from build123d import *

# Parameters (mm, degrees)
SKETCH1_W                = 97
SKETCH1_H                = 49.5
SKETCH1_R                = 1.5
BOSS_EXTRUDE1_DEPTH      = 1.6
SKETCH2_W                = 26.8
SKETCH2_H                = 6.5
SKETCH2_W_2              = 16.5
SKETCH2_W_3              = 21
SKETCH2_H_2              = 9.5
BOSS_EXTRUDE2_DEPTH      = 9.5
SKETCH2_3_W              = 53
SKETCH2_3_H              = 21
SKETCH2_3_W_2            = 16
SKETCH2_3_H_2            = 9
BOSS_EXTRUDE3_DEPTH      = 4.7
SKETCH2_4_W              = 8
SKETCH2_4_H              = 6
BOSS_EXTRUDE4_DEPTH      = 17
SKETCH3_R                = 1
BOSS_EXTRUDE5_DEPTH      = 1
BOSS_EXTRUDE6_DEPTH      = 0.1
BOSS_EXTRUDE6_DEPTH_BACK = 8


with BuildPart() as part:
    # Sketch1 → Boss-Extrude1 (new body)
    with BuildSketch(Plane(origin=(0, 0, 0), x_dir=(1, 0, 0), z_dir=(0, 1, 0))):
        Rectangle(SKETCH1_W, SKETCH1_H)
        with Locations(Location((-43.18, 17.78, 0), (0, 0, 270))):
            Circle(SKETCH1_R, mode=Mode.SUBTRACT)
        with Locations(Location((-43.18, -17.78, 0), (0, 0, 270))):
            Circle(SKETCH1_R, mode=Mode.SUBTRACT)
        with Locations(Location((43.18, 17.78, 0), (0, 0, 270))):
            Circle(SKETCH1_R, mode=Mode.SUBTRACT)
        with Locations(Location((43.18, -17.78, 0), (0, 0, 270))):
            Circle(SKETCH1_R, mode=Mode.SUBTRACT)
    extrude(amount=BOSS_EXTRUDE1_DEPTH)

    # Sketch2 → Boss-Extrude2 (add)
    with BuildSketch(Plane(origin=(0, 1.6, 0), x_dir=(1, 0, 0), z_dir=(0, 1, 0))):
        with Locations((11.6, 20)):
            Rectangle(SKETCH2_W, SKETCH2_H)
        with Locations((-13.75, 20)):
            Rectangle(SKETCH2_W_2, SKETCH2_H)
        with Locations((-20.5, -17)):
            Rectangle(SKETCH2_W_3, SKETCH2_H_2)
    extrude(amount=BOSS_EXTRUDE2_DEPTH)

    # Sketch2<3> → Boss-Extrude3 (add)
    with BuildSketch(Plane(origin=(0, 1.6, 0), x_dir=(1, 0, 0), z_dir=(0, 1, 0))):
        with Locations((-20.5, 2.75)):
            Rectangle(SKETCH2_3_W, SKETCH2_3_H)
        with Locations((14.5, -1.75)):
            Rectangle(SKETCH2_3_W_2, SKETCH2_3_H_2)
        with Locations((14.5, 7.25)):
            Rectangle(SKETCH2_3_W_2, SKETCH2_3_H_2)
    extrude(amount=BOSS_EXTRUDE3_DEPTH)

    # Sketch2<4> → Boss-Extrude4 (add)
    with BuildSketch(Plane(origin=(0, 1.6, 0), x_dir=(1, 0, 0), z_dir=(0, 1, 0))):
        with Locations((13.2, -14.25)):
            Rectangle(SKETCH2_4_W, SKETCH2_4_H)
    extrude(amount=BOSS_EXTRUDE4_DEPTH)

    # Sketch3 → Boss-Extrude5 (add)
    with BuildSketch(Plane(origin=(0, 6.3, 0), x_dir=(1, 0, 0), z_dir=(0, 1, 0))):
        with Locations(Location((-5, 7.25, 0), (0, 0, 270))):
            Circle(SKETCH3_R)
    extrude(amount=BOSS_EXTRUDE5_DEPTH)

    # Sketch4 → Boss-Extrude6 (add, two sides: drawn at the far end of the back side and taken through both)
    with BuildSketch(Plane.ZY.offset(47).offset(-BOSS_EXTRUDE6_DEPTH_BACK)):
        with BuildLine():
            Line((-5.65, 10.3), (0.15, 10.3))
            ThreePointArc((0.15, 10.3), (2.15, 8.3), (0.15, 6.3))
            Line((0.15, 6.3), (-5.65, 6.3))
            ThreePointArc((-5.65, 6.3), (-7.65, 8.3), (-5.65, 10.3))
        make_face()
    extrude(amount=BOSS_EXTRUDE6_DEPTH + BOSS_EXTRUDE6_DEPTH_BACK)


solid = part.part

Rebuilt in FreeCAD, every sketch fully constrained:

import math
import FreeCAD as App
import Part
import Sketcher
from FreeCAD import Vector

doc = App.newDocument("Part")
params = doc.addObject("Spreadsheet::Sheet", "Params")
for row, (alias, value) in enumerate([
    ("sketch1_diameter", "3 mm"),
    ("sketch1_width", "97 mm"),
    ("sketch1_height", "49.5 mm"),
    ("pad1_length", "1.6 mm"),
    ("sketch2_width", "21 mm"),
    ("sketch2_width2", "26.8 mm"),
    ("sketch2_width3", "16.5 mm"),
    ("sketch2_height", "6.5 mm"),
    ("sketch2_height2", "9.5 mm"),
    ("pad2_length", "9.5 mm"),
    ("sketch3_width", "53 mm"),
    ("sketch3_width2", "16 mm"),
    ("sketch3_height", "21 mm"),
    ("sketch3_height2", "18 mm"),
    ("pad3_length", "4.7 mm"),
    ("sketch4_width", "8 mm"),
    ("sketch4_height", "6 mm"),
    ("pad4_length", "17 mm"),
    ("sketch5_diameter", "2 mm"),
    ("pad5_length", "1 mm"),
    ("sketch6_radius", "2 mm"),
    ("sketch6_height", "5.8 mm"),
    ("pad6_length", "0.1 mm"),
    ("pad6_length2", "8 mm"),
], start=1):
    params.set(f"A{row}", alias)
    params.set(f"B{row}", "=" + value)
    params.setAlias(f"B{row}", alias)

body = doc.addObject("PartDesign::Body", "Body")

# Sketch on XZ plane
sketch1 = body.newObject("Sketcher::SketchObject", "Sketch")
sketch1.AttachmentSupport = (doc.getObject("XZ_Plane"), [""])
sketch1.MapMode = "FlatFace"
sketch1.addGeometry([
    Part.LineSegment(Vector(-48.5, -24.8, 0), Vector(-48.5, 24.8, 0)),  # 0
    Part.LineSegment(Vector(-48.5, 24.8, 0), Vector(48.5, 24.8, 0)),  # 1
    Part.LineSegment(Vector(48.5, 24.8, 0), Vector(48.5, -24.8, 0)),  # 2
    Part.LineSegment(Vector(48.5, -24.8, 0), Vector(-48.5, -24.8, 0)),  # 3
    Part.Circle(Vector(-43.2, 17.8, 0), Vector(0, 0, 1), 1.5),  # 4
    Part.Circle(Vector(43.2, 17.8, 0), Vector(0, 0, 1), 1.5),  # 5
    Part.Circle(Vector(-43.2, -17.8, 0), Vector(0, 0, 1), 1.5),  # 6
    Part.Circle(Vector(43.2, -17.8, 0), Vector(0, 0, 1), 1.5),  # 7
], False)
sketch1.addConstraint([
    Sketcher.Constraint("Coincident", 0, 2, 1, 1),
    Sketcher.Constraint("Coincident", 1, 2, 2, 1),
    Sketcher.Constraint("Coincident", 2, 2, 3, 1),
    Sketcher.Constraint("Coincident", 3, 2, 0, 1),
    Sketcher.Constraint("Vertical", 0),
    Sketcher.Constraint("Horizontal", 1),
    Sketcher.Constraint("Vertical", 2),
    Sketcher.Constraint("Horizontal", 3),
    Sketcher.Constraint("Equal", 4, 5),
    Sketcher.Constraint("Equal", 5, 6),
    Sketcher.Constraint("Equal", 6, 7),
    Sketcher.Constraint("Symmetric", 5, 3, 6, 3, -1, 1),
    Sketcher.Constraint("Symmetric", 4, 3, 7, 3, -1, 1),
    Sketcher.Constraint("Symmetric", 0, 2, 2, 2, -1, 1),
    Sketcher.Constraint("Symmetric", 4, 3, 5, 3, -2),
    Sketcher.Constraint("Diameter", 4, 3.0),
    Sketcher.Constraint("DistanceX", 1, 1, 1, 2, 97.0),
    Sketcher.Constraint("DistanceY", 0, 1, 0, 2, 49.5),
    Sketcher.Constraint("DistanceX", 4, 3, -1, 1, 43.18),
    Sketcher.Constraint("DistanceY", -1, 1, 4, 3, 17.78),
])
sketch1.setExpression("Constraints[15]", "Params.sketch1_diameter")
sketch1.setExpression("Constraints[16]", "Params.sketch1_width")
sketch1.setExpression("Constraints[17]", "Params.sketch1_height")
pad1 = body.newObject("PartDesign::Pad", "Pad")
pad1.Profile = sketch1
pad1.setExpression("Length", "Params.pad1_length")
pad1.Reversed = True

# Sketch on XZ plane
sketch2 = body.newObject("Sketcher::SketchObject", "Sketch001")
sketch2.AttachmentSupport = (doc.getObject("XZ_Plane"), [""])
sketch2.MapMode = "FlatFace"
sketch2.AttachmentOffset = App.Placement(Vector(0, 0, -1.6), App.Rotation())
sketch2.addGeometry([
    Part.LineSegment(Vector(-2, -23, 0), Vector(-2, -17, 0)),  # 0
    Part.LineSegment(Vector(-2, -17, 0), Vector(25, -17, 0)),  # 1
    Part.LineSegment(Vector(25, -17, 0), Vector(25, -23, 0)),  # 2
    Part.LineSegment(Vector(25, -23, 0), Vector(-2, -23, 0)),  # 3
    Part.LineSegment(Vector(-22, -23, 0), Vector(-22, -17, 0)),  # 4
    Part.LineSegment(Vector(-22, -17, 0), Vector(-6, -17, 0)),  # 5
    Part.LineSegment(Vector(-6, -17, 0), Vector(-6, -23, 0)),  # 6
    Part.LineSegment(Vector(-6, -23, 0), Vector(-22, -23, 0)),  # 7
    Part.LineSegment(Vector(-31, 12, 0), Vector(-31, 22, 0)),  # 8
    Part.LineSegment(Vector(-31, 22, 0), Vector(-10, 22, 0)),  # 9
    Part.LineSegment(Vector(-10, 22, 0), Vector(-10, 12, 0)),  # 10
    Part.LineSegment(Vector(-10, 12, 0), Vector(-31, 12, 0)),  # 11
], False)
sketch2.addConstraint([
    Sketcher.Constraint("Coincident", 0, 2, 1, 1),
    Sketcher.Constraint("Coincident", 1, 2, 2, 1),
    Sketcher.Constraint("Coincident", 2, 2, 3, 1),
    Sketcher.Constraint("Coincident", 3, 2, 0, 1),
    Sketcher.Constraint("Coincident", 4, 2, 5, 1),
    Sketcher.Constraint("Coincident", 5, 2, 6, 1),
    Sketcher.Constraint("Coincident", 6, 2, 7, 1),
    Sketcher.Constraint("Coincident", 7, 2, 4, 1),
    Sketcher.Constraint("Coincident", 8, 2, 9, 1),
    Sketcher.Constraint("Coincident", 9, 2, 10, 1),
    Sketcher.Constraint("Coincident", 10, 2, 11, 1),
    Sketcher.Constraint("Coincident", 11, 2, 8, 1),
    Sketcher.Constraint("Vertical", 0),
    Sketcher.Constraint("Horizontal", 1),
    Sketcher.Constraint("Vertical", 2),
    Sketcher.Constraint("Horizontal", 3),
    Sketcher.Constraint("Vertical", 4),
    Sketcher.Constraint("Horizontal", 5),
    Sketcher.Constraint("Vertical", 6),
    Sketcher.Constraint("Horizontal", 7),
    Sketcher.Constraint("Vertical", 8),
    Sketcher.Constraint("Horizontal", 9),
    Sketcher.Constraint("Vertical", 10),
    Sketcher.Constraint("Horizontal", 11),
    Sketcher.Constraint("Horizontal", 1, 2, 4, 2),
    Sketcher.Constraint("Horizontal", 3, 2, 6, 2),
    Sketcher.Constraint("DistanceX", 9, 1, 9, 2, 21.0),
    Sketcher.Constraint("DistanceX", 1, 1, 1, 2, 26.8),
    Sketcher.Constraint("DistanceX", 5, 1, 5, 2, 16.5),
    Sketcher.Constraint("DistanceY", 0, 1, 0, 2, 6.5),
    Sketcher.Constraint("DistanceY", 8, 1, 8, 2, 9.5),
    Sketcher.Constraint("DistanceX", -1, 1, 1, 2, 25.0),
    Sketcher.Constraint("DistanceX", 4, 2, -1, 1, 22.0),
    Sketcher.Constraint("DistanceX", 8, 2, -1, 1, 31.0),
    Sketcher.Constraint("DistanceY", 7, 2, 8, 2, 45.0),
    Sketcher.Constraint("DistanceY", 0, 2, -1, 1, 16.75),
])
sketch2.setExpression("Constraints[26]", "Params.sketch2_width")
sketch2.setExpression("Constraints[27]", "Params.sketch2_width2")
sketch2.setExpression("Constraints[28]", "Params.sketch2_width3")
sketch2.setExpression("Constraints[29]", "Params.sketch2_height")
sketch2.setExpression("Constraints[30]", "Params.sketch2_height2")
pad2 = body.newObject("PartDesign::Pad", "Pad001")
pad2.Profile = sketch2
pad2.setExpression("Length", "Params.pad2_length")
pad2.Reversed = True

# Sketch on XZ plane
sketch3 = body.newObject("Sketcher::SketchObject", "Sketch002")
sketch3.AttachmentSupport = (doc.getObject("XZ_Plane"), [""])
sketch3.MapMode = "FlatFace"
sketch3.AttachmentOffset = App.Placement(Vector(0, 0, -1.6), App.Rotation())
sketch3.addGeometry([
    Part.LineSegment(Vector(-47, -13, 0), Vector(-47, 8, 0)),  # 0
    Part.LineSegment(Vector(-47, 8, 0), Vector(6, 8, 0)),  # 1
    Part.LineSegment(Vector(6, 8, 0), Vector(6, -13, 0)),  # 2
    Part.LineSegment(Vector(6, -13, 0), Vector(-47, -13, 0)),  # 3
    Part.LineSegment(Vector(6, 6, 0), Vector(22, 6, 0)),  # 4
    Part.LineSegment(Vector(22, 6, 0), Vector(22, -12, 0)),  # 5
    Part.LineSegment(Vector(22, -12, 0), Vector(6, -12, 0)),  # 6
    Part.LineSegment(Vector(6, -12, 0), Vector(6, 6, 0)),  # 7
], False)
sketch3.addConstraint([
    Sketcher.Constraint("Coincident", 0, 2, 1, 1),
    Sketcher.Constraint("Coincident", 1, 2, 2, 1),
    Sketcher.Constraint("Coincident", 2, 2, 3, 1),
    Sketcher.Constraint("Coincident", 3, 2, 0, 1),
    Sketcher.Constraint("Coincident", 4, 2, 5, 1),
    Sketcher.Constraint("Coincident", 5, 2, 6, 1),
    Sketcher.Constraint("Coincident", 6, 2, 7, 1),
    Sketcher.Constraint("Coincident", 7, 2, 4, 1),
    Sketcher.Constraint("Vertical", 0),
    Sketcher.Constraint("Horizontal", 1),
    Sketcher.Constraint("Vertical", 2),
    Sketcher.Constraint("Horizontal", 3),
    Sketcher.Constraint("Horizontal", 4),
    Sketcher.Constraint("Vertical", 5),
    Sketcher.Constraint("Horizontal", 6),
    Sketcher.Constraint("Vertical", 7),
    Sketcher.Constraint("DistanceX", 1, 1, 1, 2, 53.0),
    Sketcher.Constraint("DistanceX", 4, 1, 4, 2, 16.0),
    Sketcher.Constraint("DistanceY", 0, 1, 0, 2, 21.0),
    Sketcher.Constraint("DistanceY", 5, 2, 5, 1, 18.0),
    Sketcher.Constraint("DistanceX", 0, 2, -1, 1, 47.0),
    Sketcher.Constraint("DistanceX", -1, 1, 4, 2, 22.5),
    Sketcher.Constraint("DistanceY", 4, 2, 1, 2, 1.5),
    Sketcher.Constraint("DistanceY", -1, 1, 0, 2, 7.75),
])
sketch3.setExpression("Constraints[16]", "Params.sketch3_width")
sketch3.setExpression("Constraints[17]", "Params.sketch3_width2")
sketch3.setExpression("Constraints[18]", "Params.sketch3_height")
sketch3.setExpression("Constraints[19]", "Params.sketch3_height2")
pad3 = body.newObject("PartDesign::Pad", "Pad002")
pad3.Profile = sketch3
pad3.setExpression("Length", "Params.pad3_length")
pad3.Reversed = True

# Sketch on XZ plane
sketch4 = body.newObject("Sketcher::SketchObject", "Sketch003")
sketch4.AttachmentSupport = (doc.getObject("XZ_Plane"), [""])
sketch4.MapMode = "FlatFace"
sketch4.AttachmentOffset = App.Placement(Vector(0, 0, -1.6), App.Rotation())
sketch4.addGeometry([
    Part.LineSegment(Vector(9, 11, 0), Vector(9, 17, 0)),
    Part.LineSegment(Vector(9, 17, 0), Vector(17, 17, 0)),
    Part.LineSegment(Vector(17, 17, 0), Vector(17, 11, 0)),
    Part.LineSegment(Vector(17, 11, 0), Vector(9, 11, 0)),
], False)
sketch4.addConstraint([
    Sketcher.Constraint("Coincident", 0, 2, 1, 1),
    Sketcher.Constraint("Coincident", 1, 2, 2, 1),
    Sketcher.Constraint("Coincident", 2, 2, 3, 1),
    Sketcher.Constraint("Coincident", 3, 2, 0, 1),
    Sketcher.Constraint("Vertical", 0),
    Sketcher.Constraint("Horizontal", 1),
    Sketcher.Constraint("Vertical", 2),
    Sketcher.Constraint("Horizontal", 3),
    Sketcher.Constraint("DistanceX", 1, 1, 1, 2, 8.0),
    Sketcher.Constraint("DistanceY", 0, 1, 0, 2, 6.0),
    Sketcher.Constraint("DistanceX", -1, 1, 0, 2, 9.2),
    Sketcher.Constraint("DistanceY", -1, 1, 0, 2, 17.25),
])
sketch4.setExpression("Constraints[8]", "Params.sketch4_width")
sketch4.setExpression("Constraints[9]", "Params.sketch4_height")
pad4 = body.newObject("PartDesign::Pad", "Pad003")
pad4.Profile = sketch4
pad4.setExpression("Length", "Params.pad4_length")
pad4.Reversed = True

# Sketch on XZ plane
sketch5 = body.newObject("Sketcher::SketchObject", "Sketch004")
sketch5.AttachmentSupport = (doc.getObject("XZ_Plane"), [""])
sketch5.MapMode = "FlatFace"
sketch5.AttachmentOffset = App.Placement(Vector(0, 0, -6.3), App.Rotation())
sketch5.addGeometry(Part.Circle(Vector(-5, -7.2, 0), Vector(0, 0, 1), 1), False)
sketch5.addConstraint([
    Sketcher.Constraint("Diameter", 0, 2.0),
    Sketcher.Constraint("DistanceX", 0, 3, -1, 1, 5.0),
    Sketcher.Constraint("DistanceY", 0, 3, -1, 1, 7.25),
])
sketch5.setExpression("Constraints[0]", "Params.sketch5_diameter")
pad5 = body.newObject("PartDesign::Pad", "Pad004")
pad5.Profile = sketch5
pad5.setExpression("Length", "Params.pad5_length")
pad5.Reversed = True

# Sketch on YZ plane
sketch6 = body.newObject("Sketcher::SketchObject", "Sketch005")
sketch6.AttachmentSupport = (doc.getObject("YZ_Plane"), [""])
sketch6.MapMode = "FlatFace"
sketch6.AttachmentOffset = App.Placement(Vector(0, 0, -47), App.Rotation())
sketch6.addGeometry([
    Part.LineSegment(Vector(10.3, 0.1, 0), Vector(10.3, -5.7, 0)),
    Part.ArcOfCircle(Part.Circle(Vector(8.3, -5.7, 0), Vector(0, 0, 1), 2), math.radians(180), math.radians(360)),
    Part.LineSegment(Vector(6.3, -5.7, 0), Vector(6.3, 0.1, 0)),
    Part.ArcOfCircle(Part.Circle(Vector(8.3, 0.1, 0), Vector(0, 0, 1), 2), math.radians(0), math.radians(180)),
], False)
sketch6.addConstraint([
    Sketcher.Constraint("Tangent", 0, 2, 1, 2),
    Sketcher.Constraint("Tangent", 1, 1, 2, 1),
    Sketcher.Constraint("Tangent", 2, 2, 3, 2),
    Sketcher.Constraint("Tangent", 3, 1, 0, 1),
    Sketcher.Constraint("Vertical", 0),
    Sketcher.Constraint("Vertical", 2),
    Sketcher.Constraint("Radius", 1, 2.0),
    Sketcher.Constraint("DistanceY", 0, 2, 0, 1, 5.8),
    Sketcher.Constraint("DistanceX", -1, 1, 1, 3, 8.3),
    Sketcher.Constraint("DistanceY", 1, 3, -1, 1, 5.65),
])
sketch6.setExpression("Constraints[6]", "Params.sketch6_radius")
sketch6.setExpression("Constraints[7]", "Params.sketch6_height")
pad6 = body.newObject("PartDesign::Pad", "Pad005")
pad6.Profile = sketch6
pad6.Type = "TwoLengths"
pad6.setExpression("Length", "Params.pad6_length")
pad6.setExpression("Length2", "Params.pad6_length2")
pad6.Reversed = True

doc.recompute()
